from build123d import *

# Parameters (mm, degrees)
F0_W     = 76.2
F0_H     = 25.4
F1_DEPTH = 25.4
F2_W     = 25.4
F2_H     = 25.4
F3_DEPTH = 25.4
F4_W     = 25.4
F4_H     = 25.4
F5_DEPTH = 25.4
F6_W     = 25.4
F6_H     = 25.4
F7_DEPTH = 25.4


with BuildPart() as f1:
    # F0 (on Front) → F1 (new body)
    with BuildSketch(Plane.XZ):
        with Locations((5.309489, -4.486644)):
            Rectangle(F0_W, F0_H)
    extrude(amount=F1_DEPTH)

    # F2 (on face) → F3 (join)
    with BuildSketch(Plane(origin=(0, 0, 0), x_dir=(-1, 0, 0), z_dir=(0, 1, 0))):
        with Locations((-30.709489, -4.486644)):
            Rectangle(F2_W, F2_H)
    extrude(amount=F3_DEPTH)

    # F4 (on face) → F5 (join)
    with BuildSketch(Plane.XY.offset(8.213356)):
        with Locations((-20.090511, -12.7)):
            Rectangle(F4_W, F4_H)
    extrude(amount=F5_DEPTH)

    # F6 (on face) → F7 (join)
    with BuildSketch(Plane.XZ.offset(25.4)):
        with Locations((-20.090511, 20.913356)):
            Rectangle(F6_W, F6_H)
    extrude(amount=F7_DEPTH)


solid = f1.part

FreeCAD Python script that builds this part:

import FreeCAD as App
import Part
import Sketcher
from FreeCAD import Vector
Q = App.Units.Quantity


def add_polygon(sketch, points):
    """Adds a closed chain of lines whose ends are joined by coincident constraints."""
    first, n = sketch.GeometryCount, len(points)
    for a, b in zip(points, points[1:] + points[:1]):
        sketch.addGeometry(Part.LineSegment(App.Vector(*a, 0), App.Vector(*b, 0)), False)
    for i in range(n):
        sketch.addConstraint(Sketcher.Constraint("Coincident", first + i, 2, first + (i + 1) % n, 1))

doc = App.newDocument("Part")
params = doc.addObject("Spreadsheet::Sheet", "Params")
for row, (alias, value) in enumerate([
    ("sketch1_width", "3 in"),
    ("sketch1_height", "1 in"),
    ("pad1_length", "1 in"),
    ("sketch2_width", "1 in"),
    ("pad2_length", "1 in"),
    ("sketch3_width", "1 in"),
    ("pad3_length", "1 in"),
    ("sketch4_width", "1 in"),
    ("pad4_length", "1 in"),
], start=1):
    params.set(f"A{row}", alias)
    params.set(f"B{row}", "=" + value)
    params.setAlias(f"B{row}", alias)

body = doc.addObject("PartDesign::Body", "Body")

sketch1 = body.newObject("Sketcher::SketchObject", "Sketch")
sketch1.AttachmentSupport = (doc.getObject("XZ_Plane"), [""])
sketch1.MapMode = "FlatFace"
add_polygon(sketch1, [(-33, 8), (-33, -17), (43, -17), (43, 8)])
sketch1.addConstraint(Sketcher.Constraint("Vertical", 0))
sketch1.addConstraint(Sketcher.Constraint("Horizontal", 1))
sketch1.addConstraint(Sketcher.Constraint("Vertical", 2))
sketch1.addConstraint(Sketcher.Constraint("Horizontal", 3))
sketch1.addConstraint(Sketcher.Constraint("DistanceX", 1, 1, 1, 2, Q("3 in")))
sketch1.addConstraint(Sketcher.Constraint("DistanceY", 0, 2, 0, 1, Q("1 in")))
sketch1.addConstraint(Sketcher.Constraint("DistanceX", 0, 2, -1, 1, Q("32.790511 mm")))
sketch1.addConstraint(Sketcher.Constraint("DistanceY", 0, 2, -1, 1, Q("17.186644 mm")))
sketch1.setExpression("Constraints[8]", "Params.sketch1_width")
sketch1.setExpression("Constraints[9]", "Params.sketch1_height")
pad1 = body.newObject("PartDesign::Pad", "Pad")
pad1.Profile = sketch1
pad1.setExpression("Length", "Params.pad1_length")

sketch2 = body.newObject("Sketcher::SketchObject", "Sketch001")
sketch2.AttachmentSupport = (doc.getObject("XZ_Plane"), [""])
sketch2.MapMode = "FlatFace"
add_polygon(sketch2, [(43, 8), (43, -17), (18, -17), (18, 8)])
sketch2.addConstraint(Sketcher.Constraint("Vertical", 0))
sketch2.addConstraint(Sketcher.Constraint("Horizontal", 1))
sketch2.addConstraint(Sketcher.Constraint("Vertical", 2))
sketch2.addConstraint(Sketcher.Constraint("Horizontal", 3))
sketch2.addConstraint(Sketcher.Constraint("Equal", 3, 0))
sketch2.addConstraint(Sketcher.Constraint("DistanceX", 1, 2, 1, 1, Q("1 in")))
sketch2.addConstraint(Sketcher.Constraint("DistanceX", -1, 1, 0, 2, Q("43.409489 mm")))
sketch2.addConstraint(Sketcher.Constraint("DistanceY", 0, 2, -1, 1, Q("17.186644 mm")))
sketch2.setExpression("Constraints[9]", "Params.sketch2_width")
pad2 = body.newObject("PartDesign::Pad", "Pad001")
pad2.Profile = sketch2
pad2.setExpression("Length", "Params.pad2_length")
pad2.Reversed = True

sketch3 = body.newObject("Sketcher::SketchObject", "Sketch002")
sketch3.AttachmentSupport = (doc.getObject("XY_Plane"), [""])
sketch3.MapMode = "FlatFace"
sketch3.AttachmentOffset = App.Placement(Vector(0, 0, 8.213356), App.Rotation())
add_polygon(sketch3, [(-33, 0), (-33, -25), (-7, -25), (-7, 0)])
sketch3.addConstraint(Sketcher.Constraint("Vertical", 0))
sketch3.addConstraint(Sketcher.Constraint("Horizontal", 1))
sketch3.addConstraint(Sketcher.Constraint("Vertical", 2))
sketch3.addConstraint(Sketcher.Constraint("Horizontal", 3))
sketch3.addConstraint(Sketcher.Constraint("PointOnObject", 2, 2, -1))
sketch3.addConstraint(Sketcher.Constraint("Equal", 3, 0))
sketch3.addConstraint(Sketcher.Constraint("DistanceX", 1, 1, 1, 2, Q("1 in")))
sketch3.addConstraint(Sketcher.Constraint("DistanceX", 0, 2, -1, 1, Q("32.790511 mm")))
sketch3.setExpression("Constraints[10]", "Params.sketch3_width")
pad3 = body.newObject("PartDesign::Pad", "Pad002")
pad3.Profile = sketch3
pad3.setExpression("Length", "Params.pad3_length")

sketch4 = body.newObject("Sketcher::SketchObject", "Sketch003")
sketch4.AttachmentSupport = (doc.getObject("XZ_Plane"), [""])
sketch4.MapMode = "FlatFace"
sketch4.AttachmentOffset = App.Placement(Vector(0, 0, 1 * 25.4), App.Rotation())
add_polygon(sketch4, [(-33, 34), (-33, 8), (-7, 8), (-7, 34)])
sketch4.addConstraint(Sketcher.Constraint("Vertical", 0))
sketch4.addConstraint(Sketcher.Constraint("Horizontal", 1))
sketch4.addConstraint(Sketcher.Constraint("Vertical", 2))
sketch4.addConstraint(Sketcher.Constraint("Horizontal", 3))
sketch4.addConstraint(Sketcher.Constraint("Equal", 3, 0))
sketch4.addConstraint(Sketcher.Constraint("DistanceX", 1, 1, 1, 2, Q("1 in")))
sketch4.addConstraint(Sketcher.Constraint("DistanceX", 0, 2, -1, 1, Q("32.790511 mm")))
sketch4.addConstraint(Sketcher.Constraint("DistanceY", -1, 1, 0, 2, Q("8.213356 mm")))
sketch4.setExpression("Constraints[9]", "Params.sketch4_width")
pad4 = body.newObject("PartDesign::Pad", "Pad003")
pad4.Profile = sketch4
pad4.setExpression("Length", "Params.pad4_length")

doc.recompute()
